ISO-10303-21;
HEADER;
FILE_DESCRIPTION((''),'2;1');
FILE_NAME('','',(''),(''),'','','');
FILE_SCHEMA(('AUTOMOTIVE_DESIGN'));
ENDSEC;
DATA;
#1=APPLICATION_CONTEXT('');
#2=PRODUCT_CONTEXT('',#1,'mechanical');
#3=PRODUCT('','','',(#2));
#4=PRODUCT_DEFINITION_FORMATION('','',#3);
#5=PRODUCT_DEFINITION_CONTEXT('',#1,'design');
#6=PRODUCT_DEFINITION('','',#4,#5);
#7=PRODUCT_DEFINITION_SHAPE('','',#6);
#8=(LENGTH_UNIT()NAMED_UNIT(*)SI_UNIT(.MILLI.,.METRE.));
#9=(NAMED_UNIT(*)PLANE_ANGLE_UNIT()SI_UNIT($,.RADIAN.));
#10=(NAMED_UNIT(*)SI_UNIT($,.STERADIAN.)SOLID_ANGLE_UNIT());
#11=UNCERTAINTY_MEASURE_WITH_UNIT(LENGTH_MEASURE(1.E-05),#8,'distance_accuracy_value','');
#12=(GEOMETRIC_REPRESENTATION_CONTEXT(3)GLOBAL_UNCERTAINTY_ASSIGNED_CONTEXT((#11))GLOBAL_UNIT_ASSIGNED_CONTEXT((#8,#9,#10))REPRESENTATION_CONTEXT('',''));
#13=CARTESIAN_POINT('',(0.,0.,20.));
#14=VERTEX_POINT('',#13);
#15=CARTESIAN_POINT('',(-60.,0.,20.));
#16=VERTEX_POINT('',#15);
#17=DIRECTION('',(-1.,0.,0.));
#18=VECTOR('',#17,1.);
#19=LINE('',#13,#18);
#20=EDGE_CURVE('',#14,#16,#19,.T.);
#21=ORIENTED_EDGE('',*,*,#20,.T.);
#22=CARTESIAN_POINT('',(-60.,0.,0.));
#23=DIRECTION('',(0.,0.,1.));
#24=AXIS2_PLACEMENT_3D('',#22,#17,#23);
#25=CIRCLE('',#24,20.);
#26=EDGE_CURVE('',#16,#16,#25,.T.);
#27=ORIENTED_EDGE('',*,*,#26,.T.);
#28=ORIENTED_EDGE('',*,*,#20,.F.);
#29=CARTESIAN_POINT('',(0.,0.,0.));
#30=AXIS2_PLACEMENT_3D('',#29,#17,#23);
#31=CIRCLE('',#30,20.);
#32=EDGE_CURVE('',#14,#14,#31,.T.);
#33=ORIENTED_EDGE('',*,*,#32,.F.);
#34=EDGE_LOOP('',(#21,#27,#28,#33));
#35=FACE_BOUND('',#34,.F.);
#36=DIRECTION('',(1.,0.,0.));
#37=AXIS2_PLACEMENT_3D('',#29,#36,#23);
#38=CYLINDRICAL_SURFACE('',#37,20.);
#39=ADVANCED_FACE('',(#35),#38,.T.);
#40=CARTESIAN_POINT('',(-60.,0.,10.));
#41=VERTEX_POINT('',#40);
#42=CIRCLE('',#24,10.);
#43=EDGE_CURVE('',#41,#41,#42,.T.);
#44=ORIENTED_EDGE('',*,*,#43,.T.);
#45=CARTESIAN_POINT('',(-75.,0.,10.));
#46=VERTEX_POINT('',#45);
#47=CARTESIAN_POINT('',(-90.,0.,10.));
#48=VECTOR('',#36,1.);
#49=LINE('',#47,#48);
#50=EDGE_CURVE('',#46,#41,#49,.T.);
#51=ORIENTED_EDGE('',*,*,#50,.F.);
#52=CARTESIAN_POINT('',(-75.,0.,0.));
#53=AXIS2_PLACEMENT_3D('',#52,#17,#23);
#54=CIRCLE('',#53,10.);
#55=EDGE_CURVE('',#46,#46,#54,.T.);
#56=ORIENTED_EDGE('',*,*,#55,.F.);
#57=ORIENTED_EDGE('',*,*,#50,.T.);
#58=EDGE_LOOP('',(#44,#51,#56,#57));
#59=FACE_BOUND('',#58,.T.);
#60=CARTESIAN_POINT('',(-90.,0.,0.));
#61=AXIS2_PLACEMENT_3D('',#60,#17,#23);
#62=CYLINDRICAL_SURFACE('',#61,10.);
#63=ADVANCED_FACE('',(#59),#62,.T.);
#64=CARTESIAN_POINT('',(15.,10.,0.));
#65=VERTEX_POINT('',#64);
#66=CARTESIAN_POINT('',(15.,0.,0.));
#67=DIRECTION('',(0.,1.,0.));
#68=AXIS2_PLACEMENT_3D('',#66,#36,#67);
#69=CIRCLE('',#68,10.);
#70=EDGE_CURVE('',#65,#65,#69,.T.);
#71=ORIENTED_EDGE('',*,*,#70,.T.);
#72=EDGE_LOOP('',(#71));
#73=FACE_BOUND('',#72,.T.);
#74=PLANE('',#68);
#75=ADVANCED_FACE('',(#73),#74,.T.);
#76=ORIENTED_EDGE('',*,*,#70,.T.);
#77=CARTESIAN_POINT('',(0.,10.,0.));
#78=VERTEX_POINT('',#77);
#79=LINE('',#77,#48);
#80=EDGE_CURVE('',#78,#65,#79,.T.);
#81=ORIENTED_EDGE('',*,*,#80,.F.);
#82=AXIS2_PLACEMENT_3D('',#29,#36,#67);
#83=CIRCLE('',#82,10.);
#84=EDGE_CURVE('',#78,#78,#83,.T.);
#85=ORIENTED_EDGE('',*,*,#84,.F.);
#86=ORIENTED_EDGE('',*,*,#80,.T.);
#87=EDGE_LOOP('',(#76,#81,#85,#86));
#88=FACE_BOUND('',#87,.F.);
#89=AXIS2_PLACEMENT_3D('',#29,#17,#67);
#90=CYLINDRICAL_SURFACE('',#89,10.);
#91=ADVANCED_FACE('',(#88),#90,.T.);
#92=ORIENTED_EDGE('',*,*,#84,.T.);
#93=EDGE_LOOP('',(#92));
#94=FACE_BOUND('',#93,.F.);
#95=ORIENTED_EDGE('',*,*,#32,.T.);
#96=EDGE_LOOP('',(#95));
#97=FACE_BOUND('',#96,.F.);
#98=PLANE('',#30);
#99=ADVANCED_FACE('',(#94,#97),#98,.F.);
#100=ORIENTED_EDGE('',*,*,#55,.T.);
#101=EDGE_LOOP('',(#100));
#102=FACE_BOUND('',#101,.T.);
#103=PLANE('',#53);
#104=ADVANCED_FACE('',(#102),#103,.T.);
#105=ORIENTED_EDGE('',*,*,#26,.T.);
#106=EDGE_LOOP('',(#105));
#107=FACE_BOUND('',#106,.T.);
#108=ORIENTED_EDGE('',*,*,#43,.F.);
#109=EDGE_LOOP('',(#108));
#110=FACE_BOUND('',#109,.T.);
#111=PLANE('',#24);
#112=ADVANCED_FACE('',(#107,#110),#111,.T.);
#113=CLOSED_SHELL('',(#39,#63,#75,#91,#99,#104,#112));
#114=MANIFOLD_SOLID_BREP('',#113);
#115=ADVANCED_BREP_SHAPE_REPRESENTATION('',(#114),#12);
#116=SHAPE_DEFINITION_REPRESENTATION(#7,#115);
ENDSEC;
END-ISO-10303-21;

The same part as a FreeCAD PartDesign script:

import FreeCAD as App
import Part
import Sketcher
from FreeCAD import Vector

doc = App.newDocument("Part")
body = doc.addObject("PartDesign::Body", "Body")

# Sketch on YZ plane
sketch1 = body.newObject("Sketcher::SketchObject", "Sketch")
sketch1.AttachmentSupport = (doc.getObject("YZ_Plane"), [""])
sketch1.MapMode = "FlatFace"
sketch1.addGeometry(Part.Circle(Vector(0, 0, 0), Vector(0, 0, 1), 10), False)
sketch1.addConstraint([
    Sketcher.Constraint("Coincident", 0, 3, -1, 1),
    Sketcher.Constraint("Diameter", 0, 20.0),
])
pad1 = body.newObject("PartDesign::Pad", "Pad")
pad1.Profile = sketch1
pad1.Length = 15

# Sketch on YZ plane
sketch2 = body.newObject("Sketcher::SketchObject", "Sketch001")
sketch2.AttachmentSupport = (doc.getObject("YZ_Plane"), [""])
sketch2.MapMode = "FlatFace"
sketch2.addGeometry(Part.Circle(Vector(0, 0, 0), Vector(0, 0, 1), 20), False)
sketch2.addConstraint([
    Sketcher.Constraint("Coincident", 0, 3, -1, 1),
    Sketcher.Constraint("Diameter", 0, 40.0),
])
pad2 = body.newObject("PartDesign::Pad", "Pad001")
pad2.Profile = sketch2
pad2.Length = 90
pad2.Reversed = True

# Sketch on YZ plane
sketch3 = body.newObject("Sketcher::SketchObject", "Sketch002")
sketch3.AttachmentSupport = (doc.getObject("YZ_Plane"), [""])
sketch3.MapMode = "FlatFace"
sketch3.AttachmentOffset = App.Placement(Vector(0, 0, -90), App.Rotation())
sketch3.addGeometry([
    Part.Circle(Vector(0, 0, 0), Vector(0, 0, 1), 20),
    Part.Circle(Vector(0, 0, 0), Vector(0, 0, 1), 10),
], False)
sketch3.addConstraint([
    Sketcher.Constraint("Coincident", 0, 3, -1, 1),
    Sketcher.Constraint("Coincident", 1, 3, -1, 1),
    Sketcher.Constraint("Diameter", 0, 40.0),
    Sketcher.Constraint("Diameter", 1, 20.0),
])
pocket1 = body.newObject("PartDesign::Pocket", "Pocket")
pocket1.Profile = sketch3
pocket1.Length = 30
pocket1.Reversed = True

# Sketch on YZ plane
sketch4 = body.newObject("Sketcher::SketchObject", "Sketch003")
sketch4.AttachmentSupport = (doc.getObject("YZ_Plane"), [""])
sketch4.MapMode = "FlatFace"
sketch4.AttachmentOffset = App.Placement(Vector(0, 0, -90), App.Rotation())
sketch4.addGeometry(Part.Circle(Vector(0, 0, 0), Vector(0, 0, 1), 10), False)
sketch4.addConstraint([
    Sketcher.Constraint("Coincident", 0, 3, -1, 1),
    Sketcher.Constraint("Diameter", 0, 20.0),
])
pocket2 = body.newObject("PartDesign::Pocket", "Pocket001")
pocket2.Profile = sketch4
pocket2.Length = 15
pocket2.Reversed = True

doc.recompute()
